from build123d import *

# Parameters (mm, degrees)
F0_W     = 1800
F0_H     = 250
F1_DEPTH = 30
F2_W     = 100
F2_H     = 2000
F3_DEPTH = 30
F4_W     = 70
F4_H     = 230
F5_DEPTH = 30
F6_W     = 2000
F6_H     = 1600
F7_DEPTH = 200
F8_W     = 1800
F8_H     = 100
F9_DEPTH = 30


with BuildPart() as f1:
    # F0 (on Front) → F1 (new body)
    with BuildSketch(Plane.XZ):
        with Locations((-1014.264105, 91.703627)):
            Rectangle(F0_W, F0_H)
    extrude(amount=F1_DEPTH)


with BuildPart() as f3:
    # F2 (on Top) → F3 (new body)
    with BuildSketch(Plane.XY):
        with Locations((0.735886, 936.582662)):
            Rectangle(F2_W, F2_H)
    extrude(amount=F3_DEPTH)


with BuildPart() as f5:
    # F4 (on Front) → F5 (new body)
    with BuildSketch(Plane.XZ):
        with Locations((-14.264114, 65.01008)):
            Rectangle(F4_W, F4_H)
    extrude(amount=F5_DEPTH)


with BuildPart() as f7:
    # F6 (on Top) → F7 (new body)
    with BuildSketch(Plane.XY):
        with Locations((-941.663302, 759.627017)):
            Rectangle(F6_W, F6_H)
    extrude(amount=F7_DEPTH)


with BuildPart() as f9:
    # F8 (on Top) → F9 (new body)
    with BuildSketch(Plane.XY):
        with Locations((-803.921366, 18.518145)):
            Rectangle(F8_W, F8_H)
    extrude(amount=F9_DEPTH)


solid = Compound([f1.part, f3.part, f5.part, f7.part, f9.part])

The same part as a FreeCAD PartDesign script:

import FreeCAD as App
import Part
import Sketcher

doc = App.newDocument("Part")
body = doc.addObject("PartDesign::Body", "Body")

# Sketch on XZ plane
sketch1 = body.newObject("Sketcher::SketchObject", "Sketch")
sketch1.AttachmentSupport = (doc.getObject("XZ_Plane"), [""])
sketch1.MapMode = "FlatFace"
sketch1.addGeometry([
    Part.LineSegment(App.Vector(-1914, 217, 0), App.Vector(-1914, -33, 0)),
    Part.LineSegment(App.Vector(-1914, -33, 0), App.Vector(-114, -33, 0)),
    Part.LineSegment(App.Vector(-114, -33, 0), App.Vector(-114, 217, 0)),
    Part.LineSegment(App.Vector(-114, 217, 0), App.Vector(-1914, 217, 0)),
], False)
sketch1.addConstraint([
    Sketcher.Constraint("Coincident", 0, 2, 1, 1),
    Sketcher.Constraint("Coincident", 1, 2, 2, 1),
    Sketcher.Constraint("Coincident", 2, 2, 3, 1),
    Sketcher.Constraint("Coincident", 3, 2, 0, 1),
    Sketcher.Constraint("Vertical", 0),
    Sketcher.Constraint("Horizontal", 1),
    Sketcher.Constraint("Vertical", 2),
    Sketcher.Constraint("Horizontal", 3),
    Sketcher.Constraint("DistanceX", 1, 1, 1, 2, 1800.0),
    Sketcher.Constraint("DistanceY", 0, 2, 0, 1, 250.0),
    Sketcher.Constraint("DistanceX", 0, 2, -1, 1, 1914.264105),
    Sketcher.Constraint("DistanceY", 0, 2, -1, 1, 33.296373),
])
pad1 = body.newObject("PartDesign::Pad", "Pad")
pad1.Profile = sketch1
pad1.Length = 30
body2 = doc.addObject("PartDesign::Body", "Body001")

# Sketch on XY plane
sketch2 = body2.newObject("Sketcher::SketchObject", "Sketch001")
sketch2.AttachmentSupport = (doc.getObject("XY_Plane001"), [""])
sketch2.MapMode = "FlatFace"
sketch2.addGeometry([
    Part.LineSegment(App.Vector(-49, 1937, 0), App.Vector(-49, -63, 0)),
    Part.LineSegment(App.Vector(-49, -63, 0), App.Vector(51, -63, 0)),
    Part.LineSegment(App.Vector(51, -63, 0), App.Vector(51, 1937, 0)),
    Part.LineSegment(App.Vector(51, 1937, 0), App.Vector(-49, 1937, 0)),
], False)
sketch2.addConstraint([
    Sketcher.Constraint("Coincident", 0, 2, 1, 1),
    Sketcher.Constraint("Coincident", 1, 2, 2, 1),
    Sketcher.Constraint("Coincident", 2, 2, 3, 1),
    Sketcher.Constraint("Coincident", 3, 2, 0, 1),
    Sketcher.Constraint("Vertical", 0),
    Sketcher.Constraint("Horizontal", 1),
    Sketcher.Constraint("Vertical", 2),
    Sketcher.Constraint("Horizontal", 3),
    Sketcher.Constraint("DistanceX", 1, 1, 1, 2, 100.0),
    Sketcher.Constraint("DistanceY", 0, 2, 0, 1, 2000.0),
    Sketcher.Constraint("DistanceY", -1, 1, 2, 2, 1936.582662),
    Sketcher.Constraint("DistanceX", 0, 2, -1, 1, 49.264114),
])
pad2 = body2.newObject("PartDesign::Pad", "Pad001")
pad2.Profile = sketch2
pad2.Length = 30
body3 = doc.addObject("PartDesign::Body", "Body002")

# Sketch on XZ plane
sketch3 = body3.newObject("Sketcher::SketchObject", "Sketch002")
sketch3.AttachmentSupport = (doc.getObject("XZ_Plane002"), [""])
sketch3.MapMode = "FlatFace"
sketch3.addGeometry([
    Part.LineSegment(App.Vector(-49, 180, 0), App.Vector(-49, -50, 0)),
    Part.LineSegment(App.Vector(-49, -50, 0), App.Vector(21, -50, 0)),
    Part.LineSegment(App.Vector(21, -50, 0), App.Vector(21, 180, 0)),
    Part.LineSegment(App.Vector(21, 180, 0), App.Vector(-49, 180, 0)),
], False)
sketch3.addConstraint([
    Sketcher.Constraint("Coincident", 0, 2, 1, 1),
    Sketcher.Constraint("Coincident", 1, 2, 2, 1),
    Sketcher.Constraint("Coincident", 2, 2, 3, 1),
    Sketcher.Constraint("Coincident", 3, 2, 0, 1),
    Sketcher.Constraint("Vertical", 0),
    Sketcher.Constraint("Horizontal", 1),
    Sketcher.Constraint("Vertical", 2),
    Sketcher.Constraint("Horizontal", 3),
    Sketcher.Constraint("DistanceX", 1, 1, 1, 2, 70.0),
    Sketcher.Constraint("DistanceY", 0, 2, 0, 1, 230.0),
    Sketcher.Constraint("DistanceY", 0, 2, -1, 1, 49.98992),
    Sketcher.Constraint("DistanceX", 0, 2, -1, 1, 49.264114),
])
pad3 = body3.newObject("PartDesign::Pad", "Pad002")
pad3.Profile = sketch3
pad3.Length = 30
body4 = doc.addObject("PartDesign::Body", "Body003")

# Sketch on XY plane
sketch4 = body4.newObject("Sketcher::SketchObject", "Sketch003")
sketch4.AttachmentSupport = (doc.getObject("XY_Plane003"), [""])
sketch4.MapMode = "FlatFace"
sketch4.addGeometry([
    Part.LineSegment(App.Vector(-1942, 1560, 0), App.Vector(-1942, -40, 0)),
    Part.LineSegment(App.Vector(-1942, -40, 0), App.Vector(58, -40, 0)),
    Part.LineSegment(App.Vector(58, -40, 0), App.Vector(58, 1560, 0)),
    Part.LineSegment(App.Vector(58, 1560, 0), App.Vector(-1942, 1560, 0)),
], False)
sketch4.addConstraint([
    Sketcher.Constraint("Coincident", 0, 2, 1, 1),
    Sketcher.Constraint("Coincident", 1, 2, 2, 1),
    Sketcher.Constraint("Coincident", 2, 2, 3, 1),
    Sketcher.Constraint("Coincident", 3, 2, 0, 1),
    Sketcher.Constraint("Vertical", 0),
    Sketcher.Constraint("Horizontal", 1),
    Sketcher.Constraint("Vertical", 2),
    Sketcher.Constraint("Horizontal", 3),
    Sketcher.Constraint("DistanceX", 1, 1, 1, 2, 2000.0),
    Sketcher.Constraint("DistanceY", 0, 2, 0, 1, 1600.0),
    Sketcher.Constraint("DistanceX", 0, 2, -1, 1, 1941.663302),
    Sketcher.Constraint("DistanceY", 0, 2, -1, 1, 40.372983),
])
pad4 = body4.newObject("PartDesign::Pad", "Pad003")
pad4.Profile = sketch4
pad4.Length = 200
body5 = doc.addObject("PartDesign::Body", "Body004")

# Sketch on XY plane
sketch5 = body5.newObject("Sketcher::SketchObject", "Sketch004")
sketch5.AttachmentSupport = (doc.getObject("XY_Plane004"), [""])
sketch5.MapMode = "FlatFace"
sketch5.addGeometry([
    Part.LineSegment(App.Vector(-1704, 69, 0), App.Vector(-1704, -31, 0)),
    Part.LineSegment(App.Vector(-1704, -31, 0), App.Vector(96, -31, 0)),
    Part.LineSegment(App.Vector(96, -31, 0), App.Vector(96, 69, 0)),
    Part.LineSegment(App.Vector(96, 69, 0), App.Vector(-1704, 69, 0)),
], False)
sketch5.addConstraint([
    Sketcher.Constraint("Coincident", 0, 2, 1, 1),
    Sketcher.Constraint("Coincident", 1, 2, 2, 1),
    Sketcher.Constraint("Coincident", 2, 2, 3, 1),
    Sketcher.Constraint("Coincident", 3, 2, 0, 1),
    Sketcher.Constraint("Vertical", 0),
    Sketcher.Constraint("Horizontal", 1),
    Sketcher.Constraint("Vertical", 2),
    Sketcher.Constraint("Horizontal", 3),
    Sketcher.Constraint("DistanceX", 1, 1, 1, 2, 1800.0),
    Sketcher.Constraint("DistanceY", 0, 2, 0, 1, 100.0),
    Sketcher.Constraint("DistanceX", 0, 2, -1, 1, 1703.921366),
    Sketcher.Constraint("DistanceY", 0, 2, -1, 1, 31.481855),
])
pad5 = body5.newObject("PartDesign::Pad", "Pad004")
pad5.Profile = sketch5
pad5.Length = 30

doc.recompute()
